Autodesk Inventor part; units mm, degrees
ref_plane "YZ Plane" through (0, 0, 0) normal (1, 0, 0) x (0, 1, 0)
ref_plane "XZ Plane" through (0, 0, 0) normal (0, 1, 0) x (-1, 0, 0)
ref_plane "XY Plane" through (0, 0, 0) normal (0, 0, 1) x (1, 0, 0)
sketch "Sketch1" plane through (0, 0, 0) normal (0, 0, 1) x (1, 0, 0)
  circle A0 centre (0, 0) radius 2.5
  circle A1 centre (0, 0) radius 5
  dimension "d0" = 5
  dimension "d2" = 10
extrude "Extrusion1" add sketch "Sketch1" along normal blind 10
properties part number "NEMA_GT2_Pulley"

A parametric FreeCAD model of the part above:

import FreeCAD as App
import Part
import Sketcher

V = App.Vector

doc = App.newDocument("Part")
body = doc.addObject("PartDesign::Body", "Body")

sketch1 = body.newObject("Sketcher::SketchObject", "Sketch")
sketch1.AttachmentSupport = (doc.getObject("XY_Plane"), [""])
sketch1.MapMode = "FlatFace"
sketch1.addGeometry([
    Part.Circle(V(0, 0, 0), V(0, 0, 1), 5),
    Part.Circle(V(0, 0, 0), V(0, 0, 1), 2.5),
], False)
sketch1.addConstraint([
    Sketcher.Constraint("Coincident", 0, 3, -1, 1),
    Sketcher.Constraint("Coincident", 1, 3, -1, 1),
    Sketcher.Constraint("Diameter", 0, 10.0),
    Sketcher.Constraint("Diameter", 1, 5.0),
])
pad1 = body.newObject("PartDesign::Pad", "Pad")
pad1.Profile = sketch1
pad1.Length = 10

doc.recompute()
